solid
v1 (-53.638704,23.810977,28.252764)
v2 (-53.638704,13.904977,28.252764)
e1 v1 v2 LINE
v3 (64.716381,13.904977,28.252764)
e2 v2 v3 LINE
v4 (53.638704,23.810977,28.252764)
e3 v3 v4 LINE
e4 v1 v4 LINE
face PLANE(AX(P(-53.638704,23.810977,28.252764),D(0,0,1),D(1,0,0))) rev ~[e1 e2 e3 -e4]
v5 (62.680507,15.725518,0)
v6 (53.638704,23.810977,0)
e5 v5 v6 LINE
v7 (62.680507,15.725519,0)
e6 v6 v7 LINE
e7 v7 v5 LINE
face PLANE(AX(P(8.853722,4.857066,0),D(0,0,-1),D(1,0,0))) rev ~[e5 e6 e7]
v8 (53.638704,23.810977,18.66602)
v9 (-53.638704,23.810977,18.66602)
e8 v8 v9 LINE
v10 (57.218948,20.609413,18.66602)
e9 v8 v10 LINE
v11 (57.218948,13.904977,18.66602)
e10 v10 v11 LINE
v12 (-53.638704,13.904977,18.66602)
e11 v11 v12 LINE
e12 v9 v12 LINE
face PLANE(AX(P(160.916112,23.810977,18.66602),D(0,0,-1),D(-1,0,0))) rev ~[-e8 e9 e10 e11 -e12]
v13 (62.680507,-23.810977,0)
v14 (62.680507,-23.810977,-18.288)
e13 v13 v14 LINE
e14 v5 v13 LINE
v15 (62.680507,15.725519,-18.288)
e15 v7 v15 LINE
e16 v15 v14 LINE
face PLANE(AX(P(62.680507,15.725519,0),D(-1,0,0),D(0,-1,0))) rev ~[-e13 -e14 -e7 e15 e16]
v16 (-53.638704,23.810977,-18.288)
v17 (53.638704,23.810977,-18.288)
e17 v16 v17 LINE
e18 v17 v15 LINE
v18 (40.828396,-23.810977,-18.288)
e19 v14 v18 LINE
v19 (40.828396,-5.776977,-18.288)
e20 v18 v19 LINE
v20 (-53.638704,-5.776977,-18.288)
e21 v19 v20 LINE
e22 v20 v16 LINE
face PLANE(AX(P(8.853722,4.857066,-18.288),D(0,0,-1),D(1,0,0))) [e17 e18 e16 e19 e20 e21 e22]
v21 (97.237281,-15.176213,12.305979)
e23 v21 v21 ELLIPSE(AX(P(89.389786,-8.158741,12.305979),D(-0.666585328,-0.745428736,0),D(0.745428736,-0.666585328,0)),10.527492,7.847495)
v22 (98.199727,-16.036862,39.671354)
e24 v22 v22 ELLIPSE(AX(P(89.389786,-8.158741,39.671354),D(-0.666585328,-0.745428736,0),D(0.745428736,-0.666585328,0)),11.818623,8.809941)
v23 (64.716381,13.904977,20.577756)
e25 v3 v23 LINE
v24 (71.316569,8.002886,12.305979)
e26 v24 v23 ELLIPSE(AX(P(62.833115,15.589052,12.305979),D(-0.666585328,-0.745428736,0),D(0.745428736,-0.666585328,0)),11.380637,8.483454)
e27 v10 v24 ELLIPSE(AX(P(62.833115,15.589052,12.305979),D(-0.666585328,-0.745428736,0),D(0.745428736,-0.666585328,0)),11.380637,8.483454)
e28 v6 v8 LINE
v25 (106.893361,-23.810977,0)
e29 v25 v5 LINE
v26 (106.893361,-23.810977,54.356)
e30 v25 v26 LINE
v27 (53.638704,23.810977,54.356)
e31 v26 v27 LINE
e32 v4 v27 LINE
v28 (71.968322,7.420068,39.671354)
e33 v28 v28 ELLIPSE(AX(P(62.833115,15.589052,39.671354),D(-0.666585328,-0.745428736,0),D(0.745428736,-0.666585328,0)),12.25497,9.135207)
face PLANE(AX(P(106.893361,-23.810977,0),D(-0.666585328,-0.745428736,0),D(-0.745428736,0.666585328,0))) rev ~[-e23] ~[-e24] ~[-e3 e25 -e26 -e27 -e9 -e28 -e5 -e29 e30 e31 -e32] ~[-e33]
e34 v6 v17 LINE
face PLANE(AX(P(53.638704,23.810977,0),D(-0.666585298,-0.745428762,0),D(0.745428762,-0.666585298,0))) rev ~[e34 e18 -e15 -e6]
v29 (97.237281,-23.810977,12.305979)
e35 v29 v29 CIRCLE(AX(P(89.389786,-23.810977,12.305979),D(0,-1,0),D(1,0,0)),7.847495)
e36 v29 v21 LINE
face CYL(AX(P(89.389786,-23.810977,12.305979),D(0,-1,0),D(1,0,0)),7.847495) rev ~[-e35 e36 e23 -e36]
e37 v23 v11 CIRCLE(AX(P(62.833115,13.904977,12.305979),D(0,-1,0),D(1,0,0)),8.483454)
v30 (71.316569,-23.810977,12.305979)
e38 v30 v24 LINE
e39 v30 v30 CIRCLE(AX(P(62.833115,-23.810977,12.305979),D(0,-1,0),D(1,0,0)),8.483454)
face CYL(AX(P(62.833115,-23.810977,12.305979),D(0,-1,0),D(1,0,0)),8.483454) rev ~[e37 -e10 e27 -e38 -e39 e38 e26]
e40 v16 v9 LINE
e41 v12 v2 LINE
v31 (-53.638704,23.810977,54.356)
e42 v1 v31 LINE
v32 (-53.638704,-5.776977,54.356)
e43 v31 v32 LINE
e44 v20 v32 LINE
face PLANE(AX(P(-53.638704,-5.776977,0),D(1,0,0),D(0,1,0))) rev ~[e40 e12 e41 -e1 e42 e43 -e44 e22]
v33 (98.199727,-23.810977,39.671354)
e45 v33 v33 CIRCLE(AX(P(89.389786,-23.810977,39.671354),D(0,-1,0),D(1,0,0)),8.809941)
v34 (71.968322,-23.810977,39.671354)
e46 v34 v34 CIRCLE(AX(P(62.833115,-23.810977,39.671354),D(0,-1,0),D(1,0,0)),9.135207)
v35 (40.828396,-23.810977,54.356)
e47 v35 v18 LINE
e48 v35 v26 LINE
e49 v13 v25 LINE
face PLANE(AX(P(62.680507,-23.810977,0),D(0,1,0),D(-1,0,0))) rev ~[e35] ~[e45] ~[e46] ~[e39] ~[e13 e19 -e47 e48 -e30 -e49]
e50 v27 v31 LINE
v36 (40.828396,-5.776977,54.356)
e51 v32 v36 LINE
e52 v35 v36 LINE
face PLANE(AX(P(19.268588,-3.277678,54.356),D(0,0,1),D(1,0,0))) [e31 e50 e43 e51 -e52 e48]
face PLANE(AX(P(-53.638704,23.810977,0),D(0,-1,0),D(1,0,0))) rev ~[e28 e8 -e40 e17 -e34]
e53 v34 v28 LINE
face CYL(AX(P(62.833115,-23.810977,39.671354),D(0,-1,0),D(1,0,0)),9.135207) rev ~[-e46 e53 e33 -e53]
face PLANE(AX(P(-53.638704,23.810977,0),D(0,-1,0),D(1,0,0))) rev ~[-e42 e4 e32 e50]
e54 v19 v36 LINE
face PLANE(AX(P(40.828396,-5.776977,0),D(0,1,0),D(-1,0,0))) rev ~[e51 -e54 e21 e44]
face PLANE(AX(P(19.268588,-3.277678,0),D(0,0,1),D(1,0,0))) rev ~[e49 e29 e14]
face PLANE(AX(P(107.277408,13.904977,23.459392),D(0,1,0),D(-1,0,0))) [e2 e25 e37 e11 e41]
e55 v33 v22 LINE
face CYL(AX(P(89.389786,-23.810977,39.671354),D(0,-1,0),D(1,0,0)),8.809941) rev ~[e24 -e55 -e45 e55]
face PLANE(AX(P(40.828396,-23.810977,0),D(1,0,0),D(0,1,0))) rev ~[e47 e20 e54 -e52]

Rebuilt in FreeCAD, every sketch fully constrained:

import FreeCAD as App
import Part
import Sketcher
from FreeCAD import Vector
Q = App.Units.Quantity


def add_polygon(sketch, points):
    """Adds a closed chain of lines whose ends are joined by coincident constraints."""
    first, n = sketch.GeometryCount, len(points)
    for a, b in zip(points, points[1:] + points[:1]):
        sketch.addGeometry(Part.LineSegment(App.Vector(*a, 0), App.Vector(*b, 0)), False)
    for i in range(n):
        sketch.addConstraint(Sketcher.Constraint("Coincident", first + i, 2, first + (i + 1) % n, 1))

doc = App.newDocument("Part")
params = doc.addObject("Spreadsheet::Sheet", "Params")
for row, (alias, value) in enumerate([
    ("pad1_length", "2.14 in"),
    ("sketch2_height", "2.14 in"),
    ("pocket1_length", "0.71 in"),
    ("pocket2_length", "7.53 in"),
    ("sketch4_height", "0.71 in"),
    ("pad2_length", "0.72 in"),
    ("pocket3_length", "0.39 in"),
], start=1):
    params.set(f"A{row}", alias)
    params.set(f"B{row}", "=" + value)
    params.setAlias(f"B{row}", alias)

body = doc.addObject("PartDesign::Body", "Body")

# Sketch on XY plane
sketch1 = body.newObject("Sketcher::SketchObject", "Sketch")
sketch1.AttachmentSupport = (doc.getObject("XY_Plane"), [""])
sketch1.MapMode = "FlatFace"
add_polygon(sketch1, [(54, 24), (-54, 24), (-54, -24), (107, -24)])  # lines 0-3
sketch1.addConstraint([
    Sketcher.Constraint("Horizontal", 0),
    Sketcher.Constraint("Vertical", 1),
    Sketcher.Constraint("Horizontal", 2),
    Sketcher.Constraint("Symmetric", 1, 2, 3, 2, -1, 1),
    Sketcher.Constraint("DistanceX", -1, 1, 2, 2, Q("4.2084 in")),
    Sketcher.Constraint("DistanceX", 0, 2, 0, 1, Q("107.277408 mm")),
    Sketcher.Constraint("DistanceY", 1, 2, 1, 1, Q("47.621954 mm")),
])
pad1 = body.newObject("PartDesign::Pad", "Pad")
pad1.Profile = sketch1
pad1.setExpression("Length", "Params.pad1_length")

# Sketch on XZ plane
sketch2 = body.newObject("Sketcher::SketchObject", "Sketch001")
sketch2.AttachmentSupport = (doc.getObject("XZ_Plane"), [""])
sketch2.MapMode = "FlatFace"
sketch2.AttachmentOffset = App.Placement(Vector(0, 0, 23.810977), App.Rotation())
add_polygon(sketch2, [(-54, 54), (-54, 0), (41, 0), (41, 54)])  # lines 0-3
sketch2.addConstraint([
    Sketcher.Constraint("Vertical", 0),
    Sketcher.Constraint("Horizontal", 1),
    Sketcher.Constraint("Vertical", 2),
    Sketcher.Constraint("Horizontal", 3),
    Sketcher.Constraint("PointOnObject", 0, 2, -1),
    Sketcher.Constraint("DistanceY", 0, 2, 0, 1, Q("2.14 in")),
    Sketcher.Constraint("DistanceX", 1, 1, 1, 2, Q("94.4671 mm")),
    Sketcher.Constraint("DistanceX", 0, 2, -1, 1, Q("53.638704 mm")),
])
sketch2.setExpression("Constraints[9]", "Params.sketch2_height")
pocket1 = body.newObject("PartDesign::Pocket", "Pocket")
pocket1.Profile = sketch2
pocket1.setExpression("Length", "Params.pocket1_length")

# Sketch on XZ plane
sketch3 = body.newObject("Sketcher::SketchObject", "Sketch002")
sketch3.AttachmentSupport = (doc.getObject("XZ_Plane"), [""])
sketch3.MapMode = "FlatFace"
sketch3.AttachmentOffset = App.Placement(Vector(0, 0, 23.810977), App.Rotation())
sketch3.addGeometry([
    Part.Circle(Vector(89, 40, 0), Vector(0, 0, 1), 9),
    Part.Circle(Vector(89, 12, 0), Vector(0, 0, 1), 8),
    Part.Circle(Vector(63, 12, 0), Vector(0, 0, 1), 8),
    Part.Circle(Vector(63, 40, 0), Vector(0, 0, 1), 9),
], False)
sketch3.addConstraint([
    Sketcher.Constraint("Horizontal", 1, 3, 2, 3),
    Sketcher.Constraint("Horizontal", 0, 3, 3, 3),
    Sketcher.Constraint("Vertical", 0, 3, 1, 3),
    Sketcher.Constraint("Vertical", 2, 3, 3, 3),
    Sketcher.Constraint("Diameter", 1, Q("15.69499 mm")),
    Sketcher.Constraint("Diameter", 2, Q("16.966908 mm")),
    Sketcher.Constraint("Diameter", 0, Q("17.619882 mm")),
    Sketcher.Constraint("Diameter", 3, Q("18.270414 mm")),
    Sketcher.Constraint("DistanceY", -1, 1, 1, 3, Q("12.305979 mm")),
    Sketcher.Constraint("DistanceX", 2, 3, 1, 3, Q("26.556671 mm")),
    Sketcher.Constraint("DistanceX", -1, 1, 0, 3, Q("89.389786 mm")),
    Sketcher.Constraint("DistanceY", -1, 1, 0, 3, Q("39.671354 mm")),
])
pocket2 = body.newObject("PartDesign::Pocket", "Pocket001")
pocket2.Profile = sketch3
pocket2.setExpression("Length", "Params.pocket2_length")

# Sketch on XY plane
sketch4 = body.newObject("Sketcher::SketchObject", "Sketch003")
sketch4.AttachmentSupport = (doc.getObject("XY_Plane"), [""])
sketch4.MapMode = "FlatFace"
add_polygon(sketch4, [(-54, 24), (54, 24), (63, 16), (63, -24), (41, -24), (41, -6), (-54, -6)])  # lines 0-6
sketch4.addConstraint([
    Sketcher.Constraint("Horizontal", 0),
    Sketcher.Constraint("Vertical", 2),
    Sketcher.Constraint("Horizontal", 3),
    Sketcher.Constraint("Vertical", 4),
    Sketcher.Constraint("Horizontal", 5),
    Sketcher.Constraint("Vertical", 6),
    Sketcher.Constraint("DistanceY", 4, 1, 4, 2, Q("0.71 in")),
    Sketcher.Constraint("DistanceX", 5, 2, 5, 1, Q("94.4671 mm")),
    Sketcher.Constraint("DistanceX", 3, 2, 3, 1, Q("21.852111 mm")),
    Sketcher.Constraint("DistanceX", 0, 1, 0, 2, Q("107.277408 mm")),
    Sketcher.Constraint("DistanceY", 2, 2, 2, 1, Q("39.536496 mm")),
    Sketcher.Constraint("DistanceY", 6, 1, 6, 2, Q("29.587954 mm")),
    Sketcher.Constraint("DistanceY", -1, 1, 1, 2, Q("15.725519 mm")),
    Sketcher.Constraint("DistanceX", -1, 1, 0, 2, Q("53.638704 mm")),
])
sketch4.setExpression("Constraints[13]", "Params.sketch4_height")
pad2 = body.newObject("PartDesign::Pad", "Pad001")
pad2.Profile = sketch4
pad2.setExpression("Length", "Params.pad2_length")
pad2.Reversed = True

# Sketch on XZ plane
sketch5 = body.newObject("Sketcher::SketchObject", "Sketch004")
sketch5.AttachmentSupport = (doc.getObject("XZ_Plane"), [""])
sketch5.MapMode = "FlatFace"
sketch5.AttachmentOffset = App.Placement(Vector(0, 0, -23.810977), App.Rotation())
add_polygon(sketch5, [(161, 28), (161, 19), (-54, 19), (-54, 28)])  # lines 0-3
sketch5.addConstraint([
    Sketcher.Constraint("Vertical", 0),
    Sketcher.Constraint("Horizontal", 1),
    Sketcher.Constraint("Vertical", 2),
    Sketcher.Constraint("Horizontal", 3),
    Sketcher.Constraint("DistanceX", 1, 2, 1, 1, Q("214.554816 mm")),
    Sketcher.Constraint("DistanceY", 0, 2, 0, 1, Q("9.586744 mm")),
    Sketcher.Constraint("DistanceX", -1, 1, 0, 2, Q("160.916112 mm")),
    Sketcher.Constraint("DistanceY", -1, 1, 0, 2, Q("18.66602 mm")),
])
pocket3 = body.newObject("PartDesign::Pocket", "Pocket002")
pocket3.Profile = sketch5
pocket3.setExpression("Length", "Params.pocket3_length")
pocket3.Reversed = True

doc.recompute()
